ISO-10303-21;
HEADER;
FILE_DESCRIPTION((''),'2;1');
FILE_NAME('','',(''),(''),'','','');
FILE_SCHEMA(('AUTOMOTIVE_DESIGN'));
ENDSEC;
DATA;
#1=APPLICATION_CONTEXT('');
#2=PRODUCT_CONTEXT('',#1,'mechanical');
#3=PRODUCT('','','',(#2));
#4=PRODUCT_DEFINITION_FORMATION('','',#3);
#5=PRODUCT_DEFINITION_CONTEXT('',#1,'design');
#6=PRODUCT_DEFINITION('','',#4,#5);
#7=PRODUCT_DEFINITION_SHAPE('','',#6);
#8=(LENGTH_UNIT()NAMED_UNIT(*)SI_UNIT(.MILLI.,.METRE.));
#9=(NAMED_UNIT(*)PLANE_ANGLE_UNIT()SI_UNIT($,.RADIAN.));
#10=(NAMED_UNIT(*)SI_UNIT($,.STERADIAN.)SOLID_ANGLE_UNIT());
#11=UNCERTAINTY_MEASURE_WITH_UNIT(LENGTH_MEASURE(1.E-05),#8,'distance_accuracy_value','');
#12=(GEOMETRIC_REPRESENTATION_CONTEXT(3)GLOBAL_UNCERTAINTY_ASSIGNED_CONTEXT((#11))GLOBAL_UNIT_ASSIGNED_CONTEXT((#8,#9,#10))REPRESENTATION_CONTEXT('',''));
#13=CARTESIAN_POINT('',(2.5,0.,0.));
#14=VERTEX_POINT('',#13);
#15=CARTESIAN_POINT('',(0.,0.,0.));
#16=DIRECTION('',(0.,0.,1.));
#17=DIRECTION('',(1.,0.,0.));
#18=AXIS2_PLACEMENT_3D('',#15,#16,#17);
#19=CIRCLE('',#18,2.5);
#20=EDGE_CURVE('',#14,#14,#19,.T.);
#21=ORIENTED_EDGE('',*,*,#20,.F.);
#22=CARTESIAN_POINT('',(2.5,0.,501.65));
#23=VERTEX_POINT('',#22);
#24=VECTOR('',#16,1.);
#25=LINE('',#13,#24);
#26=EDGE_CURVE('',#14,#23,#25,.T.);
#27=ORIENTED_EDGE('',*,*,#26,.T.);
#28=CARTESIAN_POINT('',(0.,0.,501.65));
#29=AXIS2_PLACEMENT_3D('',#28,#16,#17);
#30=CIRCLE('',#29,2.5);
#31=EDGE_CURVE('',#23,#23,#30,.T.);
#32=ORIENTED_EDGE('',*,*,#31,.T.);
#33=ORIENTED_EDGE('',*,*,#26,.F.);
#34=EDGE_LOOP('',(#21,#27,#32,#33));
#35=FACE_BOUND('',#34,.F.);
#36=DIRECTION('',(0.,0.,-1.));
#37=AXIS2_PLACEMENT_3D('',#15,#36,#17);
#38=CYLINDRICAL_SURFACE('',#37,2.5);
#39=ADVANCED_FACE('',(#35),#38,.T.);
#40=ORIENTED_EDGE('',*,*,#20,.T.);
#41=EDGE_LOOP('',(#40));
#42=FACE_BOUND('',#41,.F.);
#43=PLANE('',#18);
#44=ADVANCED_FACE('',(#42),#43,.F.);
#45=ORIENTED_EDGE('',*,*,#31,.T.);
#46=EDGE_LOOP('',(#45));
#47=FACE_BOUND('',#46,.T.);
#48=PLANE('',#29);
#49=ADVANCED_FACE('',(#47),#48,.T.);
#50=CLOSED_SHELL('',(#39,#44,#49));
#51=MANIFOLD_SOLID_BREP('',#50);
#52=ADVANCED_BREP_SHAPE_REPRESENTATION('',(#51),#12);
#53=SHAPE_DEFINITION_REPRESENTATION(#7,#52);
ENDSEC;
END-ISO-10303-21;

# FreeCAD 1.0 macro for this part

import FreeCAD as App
import Part
import Sketcher

V = App.Vector

doc = App.newDocument("Part")
body = doc.addObject("PartDesign::Body", "Body")

# Sketch on XY plane
sketch1 = body.newObject("Sketcher::SketchObject", "Sketch")
sketch1.AttachmentSupport = (doc.getObject("XY_Plane"), [""])
sketch1.MapMode = "FlatFace"
sketch1.addGeometry(Part.Circle(V(0, 0, 0), V(0, 0, 1), 2.5), False)
sketch1.addConstraint(Sketcher.Constraint("Coincident", 0, 3, -1, 1))
sketch1.addConstraint(Sketcher.Constraint("Diameter", 0, 5.0))
pad1 = body.newObject("PartDesign::Pad", "Pad")
pad1.Profile = sketch1
pad1.Length = 501.65

doc.recompute()
